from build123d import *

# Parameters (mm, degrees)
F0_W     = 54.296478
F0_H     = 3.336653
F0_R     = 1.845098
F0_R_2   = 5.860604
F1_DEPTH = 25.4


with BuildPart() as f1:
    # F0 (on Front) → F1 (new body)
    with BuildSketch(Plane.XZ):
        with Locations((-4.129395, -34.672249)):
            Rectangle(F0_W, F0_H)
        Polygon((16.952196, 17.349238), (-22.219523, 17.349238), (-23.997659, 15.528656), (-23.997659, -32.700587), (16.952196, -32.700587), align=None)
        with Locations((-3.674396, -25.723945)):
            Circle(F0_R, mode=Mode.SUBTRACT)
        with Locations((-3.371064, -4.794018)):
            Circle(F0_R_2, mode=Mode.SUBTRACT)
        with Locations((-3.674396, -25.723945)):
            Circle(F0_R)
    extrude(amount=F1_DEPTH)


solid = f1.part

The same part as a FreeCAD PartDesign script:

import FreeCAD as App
import Part
import Sketcher
Q = App.Units.Quantity

doc = App.newDocument("Part")
body = doc.addObject("PartDesign::Body", "Body")
body.AllowCompound = True

# Sketch on XZ plane
sketch1 = body.newObject("Sketcher::SketchObject", "Sketch")
sketch1.AttachmentSupport = (doc.getObject("XZ_Plane"), [""])
sketch1.MapMode = "FlatFace"
sketch1.addGeometry([
    Part.LineSegment(App.Vector(-31.3, -33, 0), App.Vector(-31.3, -36.3, 0)),  # 0
    Part.LineSegment(App.Vector(-31.3, -36.3, 0), App.Vector(23, -36.3, 0)),  # 1
    Part.LineSegment(App.Vector(23, -36.3, 0), App.Vector(23, -33, 0)),  # 2
    Part.LineSegment(App.Vector(23, -33, 0), App.Vector(-31.3, -33, 0)),  # 3
    Part.LineSegment(App.Vector(17, 17.3, 0), App.Vector(-22.2, 17.3, 0)),  # 4
    Part.LineSegment(App.Vector(-22.2, 17.3, 0), App.Vector(-24, 15.5, 0)),  # 5
    Part.LineSegment(App.Vector(-24, 15.5, 0), App.Vector(-24, -32.7, 0)),  # 6
    Part.LineSegment(App.Vector(-24, -32.7, 0), App.Vector(17, -32.7, 0)),  # 7
    Part.LineSegment(App.Vector(17, -32.7, 0), App.Vector(17, 17.3, 0)),  # 8
    Part.Circle(App.Vector(-3.4, -4.8, 0), App.Vector(0, 0, 1), 5.9),  # 9
], False)
sketch1.addConstraint([
    Sketcher.Constraint("Coincident", 0, 2, 1, 1),
    Sketcher.Constraint("Coincident", 1, 2, 2, 1),
    Sketcher.Constraint("Coincident", 2, 2, 3, 1),
    Sketcher.Constraint("Coincident", 3, 2, 0, 1),
    Sketcher.Constraint("Coincident", 4, 2, 5, 1),
    Sketcher.Constraint("Coincident", 5, 2, 6, 1),
    Sketcher.Constraint("Coincident", 6, 2, 7, 1),
    Sketcher.Constraint("Coincident", 7, 2, 8, 1),
    Sketcher.Constraint("Coincident", 8, 2, 4, 1),
    Sketcher.Constraint("Vertical", 0),
    Sketcher.Constraint("Horizontal", 1),
    Sketcher.Constraint("Vertical", 2),
    Sketcher.Constraint("Horizontal", 3),
    Sketcher.Constraint("Horizontal", 4),
    Sketcher.Constraint("Vertical", 6),
    Sketcher.Constraint("Horizontal", 7),
    Sketcher.Constraint("Vertical", 8),
    Sketcher.Constraint("Diameter", 9, 11.721208),
    Sketcher.Constraint("DistanceX", 4, 2, 4, 1, 39.171719),
    Sketcher.Constraint("DistanceX", 1, 1, 1, 2, 54.296478),
    Sketcher.Constraint("DistanceX", 7, 1, 7, 2, 40.949855),
    Sketcher.Constraint("DistanceY", 0, 2, 0, 1, 3.336653),
    Sketcher.Constraint("DistanceY", 6, 2, 6, 1, 48.229243),
    Sketcher.Constraint("DistanceY", 8, 1, 8, 2, 50.049825),
    Sketcher.Constraint("DistanceY", 9, 3, -1, 1, 4.794018),
    Sketcher.Constraint("DistanceX", 5, 2, -1, 1, 23.997659),
    Sketcher.Constraint("DistanceX", 0, 2, 9, 3, 27.90657),
    Sketcher.Constraint("DistanceX", 4, 2, 9, 3, 18.848459),
    Sketcher.Constraint("DistanceY", 3, 2, 4, 2, 50.353161),
    Sketcher.Constraint("DistanceY", 6, 2, 9, 3, 27.906569),
])
pad1 = body.newObject("PartDesign::Pad", "Pad")
pad1.Profile = sketch1
pad1.Length = Q("1 in")

doc.recompute()
